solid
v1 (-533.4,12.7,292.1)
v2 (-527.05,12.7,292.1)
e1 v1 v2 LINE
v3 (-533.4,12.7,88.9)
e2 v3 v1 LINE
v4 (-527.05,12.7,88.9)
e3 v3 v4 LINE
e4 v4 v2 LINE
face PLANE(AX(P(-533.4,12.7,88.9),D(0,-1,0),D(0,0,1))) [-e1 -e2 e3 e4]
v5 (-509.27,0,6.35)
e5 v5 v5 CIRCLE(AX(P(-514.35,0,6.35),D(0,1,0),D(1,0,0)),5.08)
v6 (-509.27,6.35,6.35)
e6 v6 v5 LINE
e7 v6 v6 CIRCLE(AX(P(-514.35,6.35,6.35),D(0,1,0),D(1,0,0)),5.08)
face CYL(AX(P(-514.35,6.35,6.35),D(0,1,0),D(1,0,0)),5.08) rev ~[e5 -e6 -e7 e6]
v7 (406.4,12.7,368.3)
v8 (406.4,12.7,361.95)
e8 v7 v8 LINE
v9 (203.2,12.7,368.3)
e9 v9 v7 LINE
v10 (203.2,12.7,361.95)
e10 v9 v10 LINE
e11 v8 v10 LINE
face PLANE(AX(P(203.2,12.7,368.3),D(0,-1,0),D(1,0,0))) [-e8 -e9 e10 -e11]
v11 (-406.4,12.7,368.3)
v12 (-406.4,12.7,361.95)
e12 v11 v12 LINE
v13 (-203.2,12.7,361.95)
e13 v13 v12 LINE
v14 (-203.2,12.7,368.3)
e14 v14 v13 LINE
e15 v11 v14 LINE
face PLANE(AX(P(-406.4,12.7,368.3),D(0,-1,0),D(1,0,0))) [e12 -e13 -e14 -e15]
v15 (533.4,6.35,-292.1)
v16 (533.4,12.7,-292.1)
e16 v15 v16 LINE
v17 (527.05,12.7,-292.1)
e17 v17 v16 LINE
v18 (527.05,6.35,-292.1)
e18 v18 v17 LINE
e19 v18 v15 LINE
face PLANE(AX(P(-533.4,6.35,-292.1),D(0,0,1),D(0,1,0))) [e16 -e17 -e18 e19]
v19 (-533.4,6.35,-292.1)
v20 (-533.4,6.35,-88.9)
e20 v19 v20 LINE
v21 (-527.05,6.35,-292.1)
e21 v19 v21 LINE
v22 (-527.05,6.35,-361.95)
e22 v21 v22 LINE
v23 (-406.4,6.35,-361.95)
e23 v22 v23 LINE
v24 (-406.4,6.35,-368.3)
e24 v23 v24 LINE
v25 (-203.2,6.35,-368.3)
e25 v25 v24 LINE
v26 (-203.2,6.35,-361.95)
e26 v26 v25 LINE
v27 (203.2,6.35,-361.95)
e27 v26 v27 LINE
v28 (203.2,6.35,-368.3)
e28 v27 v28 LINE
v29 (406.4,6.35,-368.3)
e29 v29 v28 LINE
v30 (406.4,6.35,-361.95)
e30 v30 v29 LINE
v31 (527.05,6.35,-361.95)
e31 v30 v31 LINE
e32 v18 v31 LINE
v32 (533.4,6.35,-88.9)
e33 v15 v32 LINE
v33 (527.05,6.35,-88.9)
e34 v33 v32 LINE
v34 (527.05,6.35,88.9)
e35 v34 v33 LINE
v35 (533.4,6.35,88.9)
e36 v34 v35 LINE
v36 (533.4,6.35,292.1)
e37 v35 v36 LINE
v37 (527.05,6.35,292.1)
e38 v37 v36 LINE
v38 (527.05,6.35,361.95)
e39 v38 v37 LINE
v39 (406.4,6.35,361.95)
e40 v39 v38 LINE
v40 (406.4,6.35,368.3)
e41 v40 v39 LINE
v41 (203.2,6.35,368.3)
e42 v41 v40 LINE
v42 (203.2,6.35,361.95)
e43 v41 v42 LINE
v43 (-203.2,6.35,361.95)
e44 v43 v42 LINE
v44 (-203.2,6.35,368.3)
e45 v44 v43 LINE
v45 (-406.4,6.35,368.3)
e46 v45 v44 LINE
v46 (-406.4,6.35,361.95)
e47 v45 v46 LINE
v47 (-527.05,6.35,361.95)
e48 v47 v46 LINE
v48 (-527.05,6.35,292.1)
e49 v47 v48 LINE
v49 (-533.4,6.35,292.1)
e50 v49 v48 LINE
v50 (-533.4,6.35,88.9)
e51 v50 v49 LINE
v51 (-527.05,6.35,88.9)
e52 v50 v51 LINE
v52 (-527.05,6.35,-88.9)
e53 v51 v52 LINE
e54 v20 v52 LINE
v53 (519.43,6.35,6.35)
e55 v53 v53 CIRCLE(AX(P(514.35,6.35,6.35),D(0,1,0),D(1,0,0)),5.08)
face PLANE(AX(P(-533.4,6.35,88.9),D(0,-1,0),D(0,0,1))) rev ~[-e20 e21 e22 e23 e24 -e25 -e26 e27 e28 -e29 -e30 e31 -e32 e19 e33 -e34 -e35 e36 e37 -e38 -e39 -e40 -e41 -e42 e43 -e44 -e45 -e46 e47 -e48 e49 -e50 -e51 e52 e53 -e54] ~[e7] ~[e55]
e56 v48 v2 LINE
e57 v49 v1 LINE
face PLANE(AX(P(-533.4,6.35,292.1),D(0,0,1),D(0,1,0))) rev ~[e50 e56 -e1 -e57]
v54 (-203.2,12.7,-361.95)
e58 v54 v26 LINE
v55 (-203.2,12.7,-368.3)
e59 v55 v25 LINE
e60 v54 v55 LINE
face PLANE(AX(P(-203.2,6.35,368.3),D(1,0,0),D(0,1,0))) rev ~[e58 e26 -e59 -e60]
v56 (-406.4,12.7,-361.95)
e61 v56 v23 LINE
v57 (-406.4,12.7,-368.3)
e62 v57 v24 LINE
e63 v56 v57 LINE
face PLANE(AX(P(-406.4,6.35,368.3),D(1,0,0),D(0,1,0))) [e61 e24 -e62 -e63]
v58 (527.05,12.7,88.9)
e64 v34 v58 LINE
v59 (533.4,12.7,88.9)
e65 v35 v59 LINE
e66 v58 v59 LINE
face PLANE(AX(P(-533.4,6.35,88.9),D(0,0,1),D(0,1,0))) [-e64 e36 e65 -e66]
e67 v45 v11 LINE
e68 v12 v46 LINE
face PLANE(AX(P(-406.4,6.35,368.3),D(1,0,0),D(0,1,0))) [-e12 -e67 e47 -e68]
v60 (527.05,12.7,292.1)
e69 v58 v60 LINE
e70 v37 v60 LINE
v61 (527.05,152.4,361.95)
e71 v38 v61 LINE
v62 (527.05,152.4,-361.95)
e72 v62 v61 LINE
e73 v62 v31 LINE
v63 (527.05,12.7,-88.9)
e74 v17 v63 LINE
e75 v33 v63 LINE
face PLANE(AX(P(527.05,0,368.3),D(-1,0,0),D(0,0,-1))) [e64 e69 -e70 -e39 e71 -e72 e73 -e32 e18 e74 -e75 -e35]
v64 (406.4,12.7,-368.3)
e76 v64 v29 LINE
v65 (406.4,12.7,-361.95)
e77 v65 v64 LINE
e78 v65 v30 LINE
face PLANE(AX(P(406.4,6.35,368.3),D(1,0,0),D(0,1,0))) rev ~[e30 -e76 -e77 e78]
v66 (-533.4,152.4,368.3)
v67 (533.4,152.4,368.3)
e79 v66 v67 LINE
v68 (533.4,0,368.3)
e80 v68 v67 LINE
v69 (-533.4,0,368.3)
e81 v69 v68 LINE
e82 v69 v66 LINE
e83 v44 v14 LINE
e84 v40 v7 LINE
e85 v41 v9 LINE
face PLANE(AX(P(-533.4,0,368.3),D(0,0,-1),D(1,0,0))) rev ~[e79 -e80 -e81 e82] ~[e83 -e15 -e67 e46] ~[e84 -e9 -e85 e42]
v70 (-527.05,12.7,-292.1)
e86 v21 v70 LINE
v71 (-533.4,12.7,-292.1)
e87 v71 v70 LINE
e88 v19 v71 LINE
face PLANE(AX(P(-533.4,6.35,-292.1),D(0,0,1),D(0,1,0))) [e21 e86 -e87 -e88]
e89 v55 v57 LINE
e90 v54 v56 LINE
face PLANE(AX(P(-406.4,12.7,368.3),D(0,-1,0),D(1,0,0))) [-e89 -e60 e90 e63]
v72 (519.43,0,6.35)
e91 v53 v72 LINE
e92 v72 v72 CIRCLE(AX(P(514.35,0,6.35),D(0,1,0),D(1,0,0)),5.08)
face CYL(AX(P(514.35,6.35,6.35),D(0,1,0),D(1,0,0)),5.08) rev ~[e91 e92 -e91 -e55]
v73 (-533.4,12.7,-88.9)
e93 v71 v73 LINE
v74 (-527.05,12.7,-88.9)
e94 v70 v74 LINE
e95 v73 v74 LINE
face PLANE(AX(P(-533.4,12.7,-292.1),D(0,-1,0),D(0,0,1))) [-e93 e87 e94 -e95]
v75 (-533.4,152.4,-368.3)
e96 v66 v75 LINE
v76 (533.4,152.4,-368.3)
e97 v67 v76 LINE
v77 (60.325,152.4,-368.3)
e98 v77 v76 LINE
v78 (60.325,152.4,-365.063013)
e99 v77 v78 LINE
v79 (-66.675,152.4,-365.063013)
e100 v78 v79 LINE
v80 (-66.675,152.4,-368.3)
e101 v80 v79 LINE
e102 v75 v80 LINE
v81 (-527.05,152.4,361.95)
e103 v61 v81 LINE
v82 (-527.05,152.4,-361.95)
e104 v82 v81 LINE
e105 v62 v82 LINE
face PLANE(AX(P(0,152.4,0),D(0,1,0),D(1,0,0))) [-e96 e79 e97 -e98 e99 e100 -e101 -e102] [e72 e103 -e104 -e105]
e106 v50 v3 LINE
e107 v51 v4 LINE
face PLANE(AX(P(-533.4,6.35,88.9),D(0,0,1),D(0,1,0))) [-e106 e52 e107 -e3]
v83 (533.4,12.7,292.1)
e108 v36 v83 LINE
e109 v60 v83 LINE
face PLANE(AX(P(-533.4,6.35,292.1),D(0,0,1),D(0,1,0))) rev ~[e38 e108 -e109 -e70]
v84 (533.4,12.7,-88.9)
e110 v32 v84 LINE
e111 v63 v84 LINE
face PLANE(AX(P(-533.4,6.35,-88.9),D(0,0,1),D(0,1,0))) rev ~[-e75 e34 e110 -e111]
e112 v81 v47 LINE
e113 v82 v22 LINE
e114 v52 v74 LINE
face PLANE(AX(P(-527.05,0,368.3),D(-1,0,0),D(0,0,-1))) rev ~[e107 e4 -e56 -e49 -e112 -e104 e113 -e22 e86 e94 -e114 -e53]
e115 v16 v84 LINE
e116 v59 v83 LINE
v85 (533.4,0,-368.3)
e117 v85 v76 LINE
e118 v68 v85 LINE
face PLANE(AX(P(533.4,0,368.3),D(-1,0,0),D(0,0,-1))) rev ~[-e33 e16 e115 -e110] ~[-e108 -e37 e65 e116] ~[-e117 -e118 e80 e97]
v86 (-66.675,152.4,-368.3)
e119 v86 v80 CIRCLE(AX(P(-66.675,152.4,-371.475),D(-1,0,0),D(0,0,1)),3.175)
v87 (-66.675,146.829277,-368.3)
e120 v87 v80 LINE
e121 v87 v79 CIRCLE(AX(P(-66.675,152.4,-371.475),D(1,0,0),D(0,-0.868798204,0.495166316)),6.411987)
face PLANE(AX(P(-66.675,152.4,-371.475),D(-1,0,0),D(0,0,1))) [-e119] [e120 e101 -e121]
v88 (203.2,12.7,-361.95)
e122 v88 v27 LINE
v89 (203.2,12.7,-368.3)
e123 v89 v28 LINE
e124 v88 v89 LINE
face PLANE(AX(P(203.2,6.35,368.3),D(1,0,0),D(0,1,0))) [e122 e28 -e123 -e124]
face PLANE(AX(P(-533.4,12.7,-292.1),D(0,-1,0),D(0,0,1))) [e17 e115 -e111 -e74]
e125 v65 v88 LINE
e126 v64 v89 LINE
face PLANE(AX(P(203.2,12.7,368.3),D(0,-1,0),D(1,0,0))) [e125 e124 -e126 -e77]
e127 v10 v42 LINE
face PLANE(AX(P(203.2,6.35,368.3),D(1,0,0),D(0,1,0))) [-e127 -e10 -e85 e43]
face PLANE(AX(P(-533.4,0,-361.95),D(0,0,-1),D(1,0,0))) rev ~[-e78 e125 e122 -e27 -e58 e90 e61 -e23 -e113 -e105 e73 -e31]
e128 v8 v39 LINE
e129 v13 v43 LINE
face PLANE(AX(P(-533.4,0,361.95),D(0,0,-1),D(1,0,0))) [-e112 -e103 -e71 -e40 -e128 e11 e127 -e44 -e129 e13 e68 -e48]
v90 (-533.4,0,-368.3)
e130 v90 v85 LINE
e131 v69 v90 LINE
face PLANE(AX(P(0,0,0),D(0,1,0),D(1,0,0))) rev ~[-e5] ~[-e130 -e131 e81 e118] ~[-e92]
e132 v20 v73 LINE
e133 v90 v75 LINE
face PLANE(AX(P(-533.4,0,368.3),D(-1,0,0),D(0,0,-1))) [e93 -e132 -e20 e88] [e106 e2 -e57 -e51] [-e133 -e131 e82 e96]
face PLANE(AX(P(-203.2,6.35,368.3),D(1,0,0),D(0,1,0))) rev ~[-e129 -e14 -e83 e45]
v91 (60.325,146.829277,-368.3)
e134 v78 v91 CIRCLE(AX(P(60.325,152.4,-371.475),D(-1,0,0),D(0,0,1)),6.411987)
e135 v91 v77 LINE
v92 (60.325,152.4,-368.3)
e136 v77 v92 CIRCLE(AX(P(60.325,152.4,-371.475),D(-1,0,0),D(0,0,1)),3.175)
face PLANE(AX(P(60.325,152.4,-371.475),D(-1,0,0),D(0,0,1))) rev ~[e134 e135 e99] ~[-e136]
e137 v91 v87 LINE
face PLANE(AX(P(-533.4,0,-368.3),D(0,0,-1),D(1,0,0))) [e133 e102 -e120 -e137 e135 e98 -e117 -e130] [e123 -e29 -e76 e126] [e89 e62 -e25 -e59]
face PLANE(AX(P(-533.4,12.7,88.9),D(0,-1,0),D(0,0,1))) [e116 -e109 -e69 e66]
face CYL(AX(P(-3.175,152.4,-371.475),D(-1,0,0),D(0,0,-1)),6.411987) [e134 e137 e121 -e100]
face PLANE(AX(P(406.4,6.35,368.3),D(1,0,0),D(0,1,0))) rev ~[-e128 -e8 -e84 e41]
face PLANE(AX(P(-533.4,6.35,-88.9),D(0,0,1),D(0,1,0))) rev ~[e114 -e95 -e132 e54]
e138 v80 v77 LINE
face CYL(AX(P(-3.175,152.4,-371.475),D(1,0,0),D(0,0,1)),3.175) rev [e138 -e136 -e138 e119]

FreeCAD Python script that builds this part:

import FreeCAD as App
import Part
import Sketcher

V = App.Vector
Q = App.Units.Quantity


def faces_at(feature, points):
    """Names of the faces that lie closest to the given points."""
    faces = feature.Shape.Faces
    near = lambda p: min(range(len(faces)), key=lambda i: faces[i].distToShape(Part.Vertex(*p))[0])
    return sorted({f"Face{near(p) + 1}" for p in points})

doc = App.newDocument("Part")
body = doc.addObject("PartDesign::Body", "Body")

# Sketch on XZ plane
sketch1 = doc.addObject("Sketcher::SketchObject", "Sketch")
body.addObject(sketch1)
sketch1.AttachmentSupport = (doc.XZ_Plane, [""])
sketch1.MapMode = "FlatFace"
sketch1.addGeometry([
    Part.LineSegment(V(-533, -368, 0), V(-533, 368, 0)),
    Part.LineSegment(V(-533, 368, 0), V(533, 368, 0)),
    Part.LineSegment(V(533, 368, 0), V(533, -368, 0)),
    Part.LineSegment(V(533, -368, 0), V(-533, -368, 0)),
], False)
sketch1.addConstraint([
    Sketcher.Constraint("Coincident", 0, 2, 1, 1),
    Sketcher.Constraint("Coincident", 1, 2, 2, 1),
    Sketcher.Constraint("Coincident", 2, 2, 3, 1),
    Sketcher.Constraint("Coincident", 3, 2, 0, 1),
    Sketcher.Constraint("Vertical", 0),
    Sketcher.Constraint("Horizontal", 1),
    Sketcher.Constraint("Vertical", 2),
    Sketcher.Constraint("Horizontal", 3),
    Sketcher.Constraint("Symmetric", 0, 2, 2, 2, -1, 1),
    Sketcher.Constraint("DistanceX", 1, 1, 1, 2, Q("42 in")),
    Sketcher.Constraint("DistanceY", 0, 1, 0, 2, Q("29 in")),
])
pad1 = doc.addObject("PartDesign::Pad", "Pad")
body.addObject(pad1)
pad1.Profile = sketch1
pad1.Length = Q("6 in")
pad1.Reversed = True
doc.recompute()

thickness = doc.addObject("PartDesign::Thickness", "Thickness")
body.addObject(thickness)
thickness.Base = (pad1, faces_at(pad1, [(0, 152.4, 0)]))
thickness.Value = Q("0.25 in")
thickness.Reversed = True
thickness.Join = "Intersection"

# Sketch on XZ plane
sketch2 = doc.addObject("Sketcher::SketchObject", "Sketch001")
body.addObject(sketch2)
sketch2.AttachmentSupport = (doc.XZ_Plane, [""])
sketch2.MapMode = "FlatFace"
sketch2.AttachmentOffset = App.Placement(V(0, 0, -0.25 * 25.4), App.Rotation())
sketch2.addGeometry([
    Part.Circle(V(-514, 6, 0), V(0, 0, 1), 5),
    Part.Circle(V(514, 6, 0), V(0, 0, 1), 5),
], False)
sketch2.addConstraint([
    Sketcher.Constraint("Equal", 0, 1),
    Sketcher.Constraint("Symmetric", 0, 3, 1, 3, -2),
    Sketcher.Constraint("Diameter", 0, Q("0.4 in")),
    Sketcher.Constraint("DistanceX", 0, 3, 1, 3, Q("40.5 in")),
    Sketcher.Constraint("DistanceY", -1, 1, 0, 3, Q("0.25 in")),
])
pocket1 = doc.addObject("PartDesign::Pocket", "Pocket")
body.addObject(pocket1)
pocket1.Profile = sketch2
pocket1.Type = "ThroughAll"
pocket1.Reversed = True

# Sketch on XY plane
sketch3 = doc.addObject("Sketcher::SketchObject", "Sketch002")
body.addObject(sketch3)
sketch3.AttachmentSupport = (doc.XY_Plane, [""])
sketch3.MapMode = "FlatFace"
sketch3.AttachmentOffset = App.Placement(V(0, 0, 14.5 * 25.4), App.Rotation())
sketch3.addGeometry([
    Part.LineSegment(V(-406, 13, 0), V(-406, 6, 0)),  # 0
    Part.LineSegment(V(-406, 6, 0), V(-203, 6, 0)),  # 1
    Part.LineSegment(V(-203, 6, 0), V(-203, 13, 0)),  # 2
    Part.LineSegment(V(-203, 13, 0), V(-406, 13, 0)),  # 3
    Part.LineSegment(V(203, 13, 0), V(203, 6, 0)),  # 4
    Part.LineSegment(V(203, 6, 0), V(406, 6, 0)),  # 5
    Part.LineSegment(V(406, 6, 0), V(406, 13, 0)),  # 6
    Part.LineSegment(V(406, 13, 0), V(203, 13, 0)),  # 7
], False)
sketch3.addConstraint([
    Sketcher.Constraint("Coincident", 0, 2, 1, 1),
    Sketcher.Constraint("Coincident", 1, 2, 2, 1),
    Sketcher.Constraint("Coincident", 2, 2, 3, 1),
    Sketcher.Constraint("Coincident", 3, 2, 0, 1),
    Sketcher.Constraint("Coincident", 4, 2, 5, 1),
    Sketcher.Constraint("Coincident", 5, 2, 6, 1),
    Sketcher.Constraint("Coincident", 6, 2, 7, 1),
    Sketcher.Constraint("Coincident", 7, 2, 4, 1),
    Sketcher.Constraint("Vertical", 0),
    Sketcher.Constraint("Horizontal", 1),
    Sketcher.Constraint("Vertical", 2),
    Sketcher.Constraint("Horizontal", 3),
    Sketcher.Constraint("Vertical", 4),
    Sketcher.Constraint("Horizontal", 5),
    Sketcher.Constraint("Vertical", 6),
    Sketcher.Constraint("Horizontal", 7),
    Sketcher.Constraint("Symmetric", 1, 2, 4, 2, -2),
    Sketcher.Constraint("Symmetric", 3, 2, 6, 2, -2),
    Sketcher.Constraint("DistanceX", 1, 1, 1, 2, Q("8 in")),
    Sketcher.Constraint("DistanceX", 0, 2, -1, 1, Q("16 in")),
    Sketcher.Constraint("DistanceY", 0, 2, 0, 1, Q("0.25 in")),
    Sketcher.Constraint("DistanceY", -1, 1, 2, 2, Q("0.5 in")),
])
pocket2 = doc.addObject("PartDesign::Pocket", "Pocket001")
body.addObject(pocket2)
pocket2.Profile = sketch3
pocket2.Type = "ThroughAll"

# Sketch on YZ plane
sketch4 = doc.addObject("Sketcher::SketchObject", "Sketch003")
body.addObject(sketch4)
sketch4.AttachmentSupport = (doc.YZ_Plane, [""])
sketch4.MapMode = "FlatFace"
sketch4.AttachmentOffset = App.Placement(V(0, 0, -21 * 25.4), App.Rotation())
sketch4.addGeometry([
    Part.LineSegment(V(13, -292, 0), V(6, -292, 0)),  # 0
    Part.LineSegment(V(6, -292, 0), V(6, -89, 0)),  # 1
    Part.LineSegment(V(6, -89, 0), V(13, -89, 0)),  # 2
    Part.LineSegment(V(13, -89, 0), V(13, -292, 0)),  # 3
    Part.LineSegment(V(13, 89, 0), V(6, 89, 0)),  # 4
    Part.LineSegment(V(6, 89, 0), V(6, 292, 0)),  # 5
    Part.LineSegment(V(6, 292, 0), V(13, 292, 0)),  # 6
    Part.LineSegment(V(13, 292, 0), V(13, 89, 0)),  # 7
], False)
sketch4.addConstraint([
    Sketcher.Constraint("Coincident", 0, 2, 1, 1),
    Sketcher.Constraint("Coincident", 1, 2, 2, 1),
    Sketcher.Constraint("Coincident", 2, 2, 3, 1),
    Sketcher.Constraint("Coincident", 3, 2, 0, 1),
    Sketcher.Constraint("Coincident", 4, 2, 5, 1),
    Sketcher.Constraint("Coincident", 5, 2, 6, 1),
    Sketcher.Constraint("Coincident", 6, 2, 7, 1),
    Sketcher.Constraint("Coincident", 7, 2, 4, 1),
    Sketcher.Constraint("Horizontal", 0),
    Sketcher.Constraint("Vertical", 1),
    Sketcher.Constraint("Horizontal", 2),
    Sketcher.Constraint("Vertical", 3),
    Sketcher.Constraint("Horizontal", 4),
    Sketcher.Constraint("Vertical", 5),
    Sketcher.Constraint("Horizontal", 6),
    Sketcher.Constraint("Vertical", 7),
    Sketcher.Constraint("Symmetric", 1, 2, 4, 2, -1),
    Sketcher.Constraint("Symmetric", 3, 2, 6, 2, -1),
    Sketcher.Constraint("DistanceY", 1, 1, 1, 2, Q("8 in")),
    Sketcher.Constraint("DistanceY", 1, 2, 4, 2, Q("7 in")),
    Sketcher.Constraint("DistanceX", 0, 2, 0, 1, Q("0.25 in")),
    Sketcher.Constraint("DistanceX", -1, 1, 2, 2, Q("0.5 in")),
])
pocket3 = doc.addObject("PartDesign::Pocket", "Pocket002")
body.addObject(pocket3)
pocket3.Profile = sketch4
pocket3.Type = "ThroughAll"
pocket3.Reversed = True

# Sketch on YZ plane
sketch5 = doc.addObject("Sketcher::SketchObject", "Sketch004")
body.addObject(sketch5)
sketch5.AttachmentSupport = (doc.YZ_Plane, [""])
sketch5.MapMode = "FlatFace"
sketch5.AttachmentOffset = App.Placement(V(0, 0, -0.125 * 25.4), App.Rotation())
sketch5.addGeometry([
    Part.Circle(V(152.4, -371.5, 0), V(0, 0, 1), 6.4),
    Part.Circle(V(152.4, -371.5, 0), V(0, 0, 1), 3.2),
], False)
sketch5.addConstraint([
    Sketcher.Constraint("Coincident", 1, 3, 0, 3),
    Sketcher.Constraint("Diameter", 1, Q("0.25 in")),
    Sketcher.Constraint("DistanceX", -1, 1, 0, 3, Q("6 in")),
    Sketcher.Constraint("DistanceY", 0, 3, -1, 1, Q("14.625 in")),
    Sketcher.Constraint("Diameter", 0, 12.823974),
])
pad2 = doc.addObject("PartDesign::Pad", "Pad001")
body.addObject(pad2)
pad2.Profile = sketch5
pad2.Length = Q("5 in")
pad2.Midplane = True

doc.recompute()
